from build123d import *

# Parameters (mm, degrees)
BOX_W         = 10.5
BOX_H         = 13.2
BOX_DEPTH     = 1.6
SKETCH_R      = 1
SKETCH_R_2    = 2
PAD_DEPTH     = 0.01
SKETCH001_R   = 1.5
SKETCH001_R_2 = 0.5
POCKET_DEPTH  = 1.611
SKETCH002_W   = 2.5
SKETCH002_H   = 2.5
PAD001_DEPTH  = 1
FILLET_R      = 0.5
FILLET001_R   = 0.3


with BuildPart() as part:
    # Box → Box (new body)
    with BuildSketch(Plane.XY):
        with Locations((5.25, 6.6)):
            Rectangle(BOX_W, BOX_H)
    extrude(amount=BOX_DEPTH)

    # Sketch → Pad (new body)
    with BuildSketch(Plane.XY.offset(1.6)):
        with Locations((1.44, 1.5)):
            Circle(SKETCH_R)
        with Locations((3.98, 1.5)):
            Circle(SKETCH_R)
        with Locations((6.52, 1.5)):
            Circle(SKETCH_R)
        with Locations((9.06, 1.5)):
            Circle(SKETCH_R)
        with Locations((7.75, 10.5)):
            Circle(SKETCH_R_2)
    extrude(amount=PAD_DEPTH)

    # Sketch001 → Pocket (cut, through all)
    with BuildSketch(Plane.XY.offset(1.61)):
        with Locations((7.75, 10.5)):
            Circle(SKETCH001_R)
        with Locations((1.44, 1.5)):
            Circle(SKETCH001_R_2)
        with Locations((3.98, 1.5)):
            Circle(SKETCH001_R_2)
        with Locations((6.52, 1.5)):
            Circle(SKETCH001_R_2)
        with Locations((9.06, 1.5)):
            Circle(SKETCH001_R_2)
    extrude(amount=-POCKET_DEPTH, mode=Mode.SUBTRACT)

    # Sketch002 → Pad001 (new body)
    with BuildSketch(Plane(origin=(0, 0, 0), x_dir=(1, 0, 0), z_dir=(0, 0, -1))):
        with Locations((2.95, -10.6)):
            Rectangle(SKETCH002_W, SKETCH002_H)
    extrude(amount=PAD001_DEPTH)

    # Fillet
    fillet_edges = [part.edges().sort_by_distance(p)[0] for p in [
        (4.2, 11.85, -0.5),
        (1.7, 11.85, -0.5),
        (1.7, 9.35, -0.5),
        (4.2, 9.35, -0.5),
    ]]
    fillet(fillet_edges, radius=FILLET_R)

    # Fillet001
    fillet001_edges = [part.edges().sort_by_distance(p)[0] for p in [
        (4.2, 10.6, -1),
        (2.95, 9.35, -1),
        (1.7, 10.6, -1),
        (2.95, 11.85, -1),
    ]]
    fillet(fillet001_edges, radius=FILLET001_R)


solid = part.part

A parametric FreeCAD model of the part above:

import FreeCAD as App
import Part
import Sketcher
Q = App.Units.Quantity


def edges_at(feature, points):
    """Names of the edges that pass closest to the given points."""
    edges = feature.Shape.Edges
    near = lambda p: min(range(len(edges)), key=lambda i: edges[i].distToShape(Part.Vertex(*p))[0])
    return sorted({f"Edge{near(p) + 1}" for p in points})


def add_polygon(sketch, points):
    """Adds a closed chain of lines whose ends are joined by coincident constraints."""
    first, n = sketch.GeometryCount, len(points)
    for a, b in zip(points, points[1:] + points[:1]):
        sketch.addGeometry(Part.LineSegment(App.Vector(*a, 0), App.Vector(*b, 0)), False)
    for i in range(n):
        sketch.addConstraint(Sketcher.Constraint("Coincident", first + i, 2, first + (i + 1) % n, 1))

doc = App.newDocument("Part")
body = doc.addObject("PartDesign::Body", "Body")

# Sketch on XY plane
sketch1 = body.newObject("Sketcher::SketchObject", "Sketch")
sketch1.AttachmentSupport = (doc.getObject("XY_Plane"), [""])
sketch1.MapMode = "FlatFace"
add_polygon(sketch1, [(0, 13), (0, 0), (10, 0), (10, 13)])  # lines 0-3
sketch1.addConstraint(Sketcher.Constraint("Vertical", 0))
sketch1.addConstraint(Sketcher.Constraint("Horizontal", 1))
sketch1.addConstraint(Sketcher.Constraint("Vertical", 2))
sketch1.addConstraint(Sketcher.Constraint("Horizontal", 3))
sketch1.addConstraint(Sketcher.Constraint("Coincident", 0, 2, -1, 1))
sketch1.addConstraint(Sketcher.Constraint("DistanceX", 1, 1, 1, 2, Q("10.5 mm")))
sketch1.addConstraint(Sketcher.Constraint("DistanceY", 0, 2, 0, 1, Q("13.2 mm")))
pad1 = body.newObject("PartDesign::Pad", "Pad")
pad1.Profile = sketch1
pad1.Length = 1.6

# Sketch on XY plane
sketch2 = body.newObject("Sketcher::SketchObject", "Sketch001")
sketch2.AttachmentSupport = (doc.getObject("XY_Plane"), [""])
sketch2.MapMode = "FlatFace"
sketch2.AttachmentOffset = App.Placement(App.Vector(0, 0, 1.6), App.Rotation())
sketch2.addGeometry(Part.Circle(App.Vector(1.4, 1.5, 0), App.Vector(0, 0, 1), 1), False)
sketch2.addGeometry(Part.Circle(App.Vector(4, 1.5, 0), App.Vector(0, 0, 1), 1), False)
sketch2.addGeometry(Part.Circle(App.Vector(6.5, 1.5, 0), App.Vector(0, 0, 1), 1), False)
sketch2.addGeometry(Part.Circle(App.Vector(9.1, 1.5, 0), App.Vector(0, 0, 1), 1), False)
sketch2.addGeometry(Part.Circle(App.Vector(7.8, 10.5, 0), App.Vector(0, 0, 1), 2), False)
sketch2.addConstraint(Sketcher.Constraint("Equal", 0, 1))
sketch2.addConstraint(Sketcher.Constraint("Equal", 1, 2))
sketch2.addConstraint(Sketcher.Constraint("Equal", 2, 3))
sketch2.addConstraint(Sketcher.Constraint("Horizontal", 0, 3, 1, 3))
sketch2.addConstraint(Sketcher.Constraint("Horizontal", 1, 3, 2, 3))
sketch2.addConstraint(Sketcher.Constraint("Horizontal", 2, 3, 3, 3))
sketch2.addConstraint(Sketcher.Constraint("Diameter", 0, Q("2 mm")))
sketch2.addConstraint(Sketcher.Constraint("Diameter", 4, Q("4 mm")))
sketch2.addConstraint(Sketcher.Constraint("DistanceY", 2, 3, 4, 3, Q("9 mm")))
sketch2.addConstraint(Sketcher.Constraint("DistanceY", -1, 1, 0, 3, Q("1.5 mm")))
sketch2.addConstraint(Sketcher.Constraint("DistanceX", -1, 1, 0, 3, Q("1.44 mm")))
sketch2.addConstraint(Sketcher.Constraint("DistanceX", -1, 1, 1, 3, Q("3.98 mm")))
sketch2.addConstraint(Sketcher.Constraint("DistanceX", -1, 1, 2, 3, Q("6.52 mm")))
sketch2.addConstraint(Sketcher.Constraint("DistanceX", -1, 1, 3, 3, Q("9.06 mm")))
sketch2.addConstraint(Sketcher.Constraint("DistanceX", -1, 1, 4, 3, Q("7.75 mm")))
pad2 = body.newObject("PartDesign::Pad", "Pad001")
pad2.Profile = sketch2
pad2.Length = 0.01

# Sketch on XY plane
sketch3 = body.newObject("Sketcher::SketchObject", "Sketch002")
sketch3.AttachmentSupport = (doc.getObject("XY_Plane"), [""])
sketch3.MapMode = "FlatFace"
sketch3.AttachmentOffset = App.Placement(App.Vector(0, 0, 1.61), App.Rotation())
sketch3.addGeometry(Part.Circle(App.Vector(7.8, 10.5, 0), App.Vector(0, 0, 1), 1.5), False)
sketch3.addGeometry(Part.Circle(App.Vector(1.4, 1.5, 0), App.Vector(0, 0, 1), 0.5), False)
sketch3.addGeometry(Part.Circle(App.Vector(4, 1.5, 0), App.Vector(0, 0, 1), 0.5), False)
sketch3.addGeometry(Part.Circle(App.Vector(6.5, 1.5, 0), App.Vector(0, 0, 1), 0.5), False)
sketch3.addGeometry(Part.Circle(App.Vector(9.1, 1.5, 0), App.Vector(0, 0, 1), 0.5), False)
sketch3.addConstraint(Sketcher.Constraint("Equal", 1, 2))
sketch3.addConstraint(Sketcher.Constraint("Equal", 2, 3))
sketch3.addConstraint(Sketcher.Constraint("Equal", 3, 4))
sketch3.addConstraint(Sketcher.Constraint("Horizontal", 1, 3, 2, 3))
sketch3.addConstraint(Sketcher.Constraint("Horizontal", 2, 3, 3, 3))
sketch3.addConstraint(Sketcher.Constraint("Horizontal", 3, 3, 4, 3))
sketch3.addConstraint(Sketcher.Constraint("Diameter", 0, Q("3 mm")))
sketch3.addConstraint(Sketcher.Constraint("Diameter", 1, Q("1 mm")))
sketch3.addConstraint(Sketcher.Constraint("DistanceY", 1, 3, 0, 3, Q("9 mm")))
sketch3.addConstraint(Sketcher.Constraint("DistanceY", -1, 1, 0, 3, Q("10.5 mm")))
sketch3.addConstraint(Sketcher.Constraint("DistanceX", -1, 1, 0, 3, Q("7.75 mm")))
sketch3.addConstraint(Sketcher.Constraint("DistanceX", -1, 1, 1, 3, Q("1.44 mm")))
sketch3.addConstraint(Sketcher.Constraint("DistanceX", -1, 1, 2, 3, Q("3.98 mm")))
sketch3.addConstraint(Sketcher.Constraint("DistanceX", -1, 1, 3, 3, Q("6.52 mm")))
sketch3.addConstraint(Sketcher.Constraint("DistanceX", -1, 1, 4, 3, Q("9.06 mm")))
pocket1 = body.newObject("PartDesign::Pocket", "Pocket")
pocket1.Profile = sketch3
pocket1.Type = "ThroughAll"

# Sketch on XY plane
sketch4 = body.newObject("Sketcher::SketchObject", "Sketch003")
sketch4.AttachmentSupport = (doc.getObject("XY_Plane"), [""])
sketch4.MapMode = "FlatFace"
add_polygon(sketch4, [(1.7, 9.3), (1.7, 11.8), (4.2, 11.8), (4.2, 9.3)])  # lines 0-3
sketch4.addConstraint(Sketcher.Constraint("Vertical", 0))
sketch4.addConstraint(Sketcher.Constraint("Horizontal", 1))
sketch4.addConstraint(Sketcher.Constraint("Vertical", 2))
sketch4.addConstraint(Sketcher.Constraint("Horizontal", 3))
sketch4.addConstraint(Sketcher.Constraint("Equal", 3, 0))
sketch4.addConstraint(Sketcher.Constraint("DistanceX", 1, 1, 1, 2, Q("2.5 mm")))
sketch4.addConstraint(Sketcher.Constraint("DistanceX", -1, 1, 0, 2, Q("1.7 mm")))
sketch4.addConstraint(Sketcher.Constraint("DistanceY", -1, 1, 0, 2, Q("11.85 mm")))
pad3 = body.newObject("PartDesign::Pad", "Pad002")
pad3.Profile = sketch4
pad3.Length = 1
pad3.Reversed = True
doc.recompute()

fillet = body.newObject("PartDesign::Fillet", "Fillet")
fillet.Base = (pad3, edges_at(pad3, [
    (4.2, 11.85, -0.5),
    (1.7, 11.85, -0.5),
    (1.7, 9.35, -0.5),
    (4.2, 9.35, -0.5),
]))
fillet.Radius = 0.5
doc.recompute()

fillet2 = body.newObject("PartDesign::Fillet", "Fillet001")
fillet2.Base = (fillet, edges_at(fillet, [
    (4.2, 10.6, -1),
    (2.95, 9.35, -1),
    (1.7, 10.6, -1),
    (2.95, 11.85, -1),
]))
fillet2.Radius = 0.3

doc.recompute()
